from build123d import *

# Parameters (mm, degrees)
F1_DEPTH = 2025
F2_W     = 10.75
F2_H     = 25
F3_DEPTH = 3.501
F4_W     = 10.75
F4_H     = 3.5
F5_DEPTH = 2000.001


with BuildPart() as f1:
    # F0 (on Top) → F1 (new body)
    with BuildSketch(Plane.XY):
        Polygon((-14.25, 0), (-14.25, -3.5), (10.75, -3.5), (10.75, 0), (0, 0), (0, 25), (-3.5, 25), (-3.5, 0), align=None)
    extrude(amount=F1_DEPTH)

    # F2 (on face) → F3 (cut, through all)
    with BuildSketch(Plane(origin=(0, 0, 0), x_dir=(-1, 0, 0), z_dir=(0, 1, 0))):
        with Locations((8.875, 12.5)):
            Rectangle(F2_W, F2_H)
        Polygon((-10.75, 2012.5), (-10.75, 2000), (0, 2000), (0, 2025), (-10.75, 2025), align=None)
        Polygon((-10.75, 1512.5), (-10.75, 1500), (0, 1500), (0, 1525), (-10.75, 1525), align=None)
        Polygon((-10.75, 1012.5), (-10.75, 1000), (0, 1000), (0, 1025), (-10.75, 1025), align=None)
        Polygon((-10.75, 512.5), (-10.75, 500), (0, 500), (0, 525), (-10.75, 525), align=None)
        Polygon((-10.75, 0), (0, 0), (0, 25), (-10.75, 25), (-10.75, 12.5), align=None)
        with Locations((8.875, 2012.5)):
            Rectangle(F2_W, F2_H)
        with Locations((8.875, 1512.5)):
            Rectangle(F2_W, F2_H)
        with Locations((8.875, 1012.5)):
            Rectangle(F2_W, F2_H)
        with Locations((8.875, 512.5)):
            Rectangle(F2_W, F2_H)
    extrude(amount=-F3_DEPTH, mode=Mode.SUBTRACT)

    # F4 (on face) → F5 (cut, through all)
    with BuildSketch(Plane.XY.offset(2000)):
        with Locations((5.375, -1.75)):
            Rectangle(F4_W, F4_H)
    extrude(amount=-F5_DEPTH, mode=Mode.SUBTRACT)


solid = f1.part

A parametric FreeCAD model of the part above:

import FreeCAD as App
import Part
import Sketcher
from FreeCAD import Vector
Q = App.Units.Quantity


def add_polygon(sketch, points):
    """Adds a closed chain of lines whose ends are joined by coincident constraints."""
    first, n = sketch.GeometryCount, len(points)
    for a, b in zip(points, points[1:] + points[:1]):
        sketch.addGeometry(Part.LineSegment(App.Vector(*a, 0), App.Vector(*b, 0)), False)
    for i in range(n):
        sketch.addConstraint(Sketcher.Constraint("Coincident", first + i, 2, first + (i + 1) % n, 1))

doc = App.newDocument("Part")
body = doc.addObject("PartDesign::Body", "Body")

sketch1 = doc.addObject("Sketcher::SketchObject", "Sketch")
body.addObject(sketch1)
sketch1.AttachmentSupport = (doc.XY_Plane, [""])
sketch1.MapMode = "FlatFace"
add_polygon(sketch1, [(-14.25, 0), (-14.25, -3.5), (10.75, -3.5), (10.75, 0), (0, 0), (0, 25), (-3.5, 25), (-3.5, 0)])
sketch1.addConstraint([
    Sketcher.Constraint("Vertical", 0),
    Sketcher.Constraint("Horizontal", 1),
    Sketcher.Constraint("Vertical", 2),
    Sketcher.Constraint("Horizontal", 3),
    Sketcher.Constraint("Vertical", 4),
    Sketcher.Constraint("Horizontal", 5),
    Sketcher.Constraint("Vertical", 6),
    Sketcher.Constraint("Horizontal", 7),
    Sketcher.Constraint("Coincident", 3, 2, -1, 1),
    Sketcher.Constraint("PointOnObject", 6, 2, -1),
    Sketcher.Constraint("Equal", 3, 7),
    Sketcher.Constraint("Equal", 5, 0),
    Sketcher.Constraint("Equal", 1, 4),
    Sketcher.Constraint("DistanceX", 1, 1, 1, 2, Q("25 mm")),
    Sketcher.Constraint("DistanceX", 5, 2, 5, 1, Q("3.5 mm")),
])
pad1 = doc.addObject("PartDesign::Pad", "Pad")
body.addObject(pad1)
pad1.Profile = sketch1
pad1.Length = 2025

sketch2 = doc.addObject("Sketcher::SketchObject", "Sketch001")
body.addObject(sketch2)
sketch2.AttachmentSupport = (doc.XZ_Plane, [""])
sketch2.MapMode = "FlatFace"
add_polygon(sketch2, [(-3.5, 25), (-3.5, 0), (-14.25, 0), (-14.25, 25)])
add_polygon(sketch2, [(10.75, 2000), (0, 2000), (0, 2025), (10.75, 2025)])
add_polygon(sketch2, [(10.75, 1500), (0, 1500), (0, 1525), (10.75, 1525)])
add_polygon(sketch2, [(10.75, 1000), (0, 1000), (0, 1025), (10.75, 1025)])
add_polygon(sketch2, [(10.75, 500), (0, 500), (0, 525), (10.75, 525)])
add_polygon(sketch2, [(10.75, 0), (0, 0), (0, 25), (10.75, 25)])
add_polygon(sketch2, [(-3.5, 2025), (-3.5, 2000), (-14.25, 2000), (-14.25, 2025)])
add_polygon(sketch2, [(-3.5, 1525), (-3.5, 1500), (-14.25, 1500), (-14.25, 1525)])
add_polygon(sketch2, [(-3.5, 1025), (-3.5, 1000), (-14.25, 1000), (-14.25, 1025)])
add_polygon(sketch2, [(-3.5, 525), (-3.5, 500), (-14.25, 500), (-14.25, 525)])
sketch2.addConstraint([
    Sketcher.Constraint("Vertical", 0),
    Sketcher.Constraint("Horizontal", 1),
    Sketcher.Constraint("Vertical", 2),
    Sketcher.Constraint("Horizontal", 3),
    Sketcher.Constraint("Horizontal", 4),
    Sketcher.Constraint("Vertical", 5),
    Sketcher.Constraint("Horizontal", 6),
    Sketcher.Constraint("Vertical", 7),
    Sketcher.Constraint("Horizontal", 8),
    Sketcher.Constraint("Vertical", 9),
    Sketcher.Constraint("Horizontal", 10),
    Sketcher.Constraint("Vertical", 11),
    Sketcher.Constraint("Horizontal", 12),
    Sketcher.Constraint("Vertical", 13),
    Sketcher.Constraint("Horizontal", 14),
    Sketcher.Constraint("Vertical", 15),
    Sketcher.Constraint("Horizontal", 16),
    Sketcher.Constraint("Vertical", 17),
    Sketcher.Constraint("Horizontal", 18),
    Sketcher.Constraint("Vertical", 19),
    Sketcher.Constraint("Horizontal", 20),
    Sketcher.Constraint("Vertical", 21),
    Sketcher.Constraint("Horizontal", 22),
    Sketcher.Constraint("Vertical", 23),
    Sketcher.Constraint("Vertical", 24),
    Sketcher.Constraint("Horizontal", 25),
    Sketcher.Constraint("Vertical", 26),
    Sketcher.Constraint("Horizontal", 27),
    Sketcher.Constraint("Vertical", 28),
    Sketcher.Constraint("Horizontal", 29),
    Sketcher.Constraint("Vertical", 30),
    Sketcher.Constraint("Horizontal", 31),
    Sketcher.Constraint("Vertical", 32),
    Sketcher.Constraint("Horizontal", 33),
    Sketcher.Constraint("Vertical", 34),
    Sketcher.Constraint("Horizontal", 35),
    Sketcher.Constraint("Vertical", 36),
    Sketcher.Constraint("Horizontal", 37),
    Sketcher.Constraint("Vertical", 38),
    Sketcher.Constraint("Horizontal", 39),
    Sketcher.Constraint("Coincident", 20, 2, -1, 1),
    Sketcher.Constraint("PointOnObject", 0, 2, -1),
    Sketcher.Constraint("PointOnObject", 4, 2, -2),
    Sketcher.Constraint("PointOnObject", 8, 2, -2),
    Sketcher.Constraint("PointOnObject", 12, 2, -2),
    Sketcher.Constraint("PointOnObject", 16, 2, -2),
    Sketcher.Constraint("Horizontal", 3, 2, 21, 2),
    Sketcher.Constraint("Horizontal", 7, 2, 24, 2),
    Sketcher.Constraint("Horizontal", 6, 2, 26, 2),
    Sketcher.Constraint("Horizontal", 11, 2, 28, 2),
    Sketcher.Constraint("Horizontal", 10, 2, 30, 2),
    Sketcher.Constraint("Horizontal", 15, 2, 32, 2),
    Sketcher.Constraint("Horizontal", 14, 2, 34, 2),
    Sketcher.Constraint("Horizontal", 19, 2, 36, 2),
    Sketcher.Constraint("Horizontal", 18, 2, 38, 2),
    Sketcher.Constraint("Vertical", 7, 2, 10, 2),
    Sketcher.Constraint("Vertical", 11, 2, 14, 2),
    Sketcher.Constraint("Vertical", 15, 2, 18, 2),
    Sketcher.Constraint("Vertical", 19, 2, 22, 2),
    Sketcher.Constraint("Vertical", 3, 2, 24, 2),
    Sketcher.Constraint("Vertical", 2, 2, 25, 2),
    Sketcher.Constraint("Vertical", 27, 2, 28, 2),
    Sketcher.Constraint("Vertical", 26, 2, 29, 2),
    Sketcher.Constraint("Vertical", 31, 2, 32, 2),
    Sketcher.Constraint("Vertical", 30, 2, 33, 2),
    Sketcher.Constraint("Vertical", 35, 2, 36, 2),
    Sketcher.Constraint("Vertical", 34, 2, 37, 2),
    Sketcher.Constraint("Equal", 3, 4),
    Sketcher.Constraint("Equal", 2, 5),
    Sketcher.Constraint("Equal", 7, 9),
    Sketcher.Constraint("Equal", 11, 13),
    Sketcher.Constraint("Equal", 15, 17),
    Sketcher.Constraint("DistanceY", 0, 2, 0, 1, Q("25 mm")),
    Sketcher.Constraint("DistanceY", -1, 1, 4, 2, Q("2000 mm")),
    Sketcher.Constraint("DistanceY", -1, 1, 8, 2, Q("1500 mm")),
    Sketcher.Constraint("DistanceY", -1, 1, 12, 2, Q("1000 mm")),
    Sketcher.Constraint("DistanceY", -1, 1, 16, 2, Q("500 mm")),
    Sketcher.Constraint("DistanceX", 2, 2, 6, 2, Q("25 mm")),
    Sketcher.Constraint("DistanceX", 1, 2, 1, 1, Q("10.75 mm")),
])
pocket1 = doc.addObject("PartDesign::Pocket", "Pocket")
body.addObject(pocket1)
pocket1.Profile = sketch2
pocket1.Type = "ThroughAll"
pocket1.Reversed = True

sketch3 = doc.addObject("Sketcher::SketchObject", "Sketch002")
body.addObject(sketch3)
sketch3.AttachmentSupport = (doc.XY_Plane, [""])
sketch3.MapMode = "FlatFace"
sketch3.AttachmentOffset = App.Placement(Vector(0, 0, 2000), App.Rotation())
add_polygon(sketch3, [(0, 0), (0, -3.5), (10.75, -3.5), (10.75, 0)])
sketch3.addConstraint([
    Sketcher.Constraint("Vertical", 0),
    Sketcher.Constraint("Horizontal", 1),
    Sketcher.Constraint("Vertical", 2),
    Sketcher.Constraint("Horizontal", 3),
    Sketcher.Constraint("Coincident", 3, 2, -1, 1),
    Sketcher.Constraint("DistanceY", 0, 2, 0, 1, Q("3.5 mm")),
    Sketcher.Constraint("DistanceX", 1, 1, 1, 2, Q("10.75 mm")),
])
pocket2 = doc.addObject("PartDesign::Pocket", "Pocket001")
body.addObject(pocket2)
pocket2.Profile = sketch3
pocket2.Type = "ThroughAll"

doc.recompute()
